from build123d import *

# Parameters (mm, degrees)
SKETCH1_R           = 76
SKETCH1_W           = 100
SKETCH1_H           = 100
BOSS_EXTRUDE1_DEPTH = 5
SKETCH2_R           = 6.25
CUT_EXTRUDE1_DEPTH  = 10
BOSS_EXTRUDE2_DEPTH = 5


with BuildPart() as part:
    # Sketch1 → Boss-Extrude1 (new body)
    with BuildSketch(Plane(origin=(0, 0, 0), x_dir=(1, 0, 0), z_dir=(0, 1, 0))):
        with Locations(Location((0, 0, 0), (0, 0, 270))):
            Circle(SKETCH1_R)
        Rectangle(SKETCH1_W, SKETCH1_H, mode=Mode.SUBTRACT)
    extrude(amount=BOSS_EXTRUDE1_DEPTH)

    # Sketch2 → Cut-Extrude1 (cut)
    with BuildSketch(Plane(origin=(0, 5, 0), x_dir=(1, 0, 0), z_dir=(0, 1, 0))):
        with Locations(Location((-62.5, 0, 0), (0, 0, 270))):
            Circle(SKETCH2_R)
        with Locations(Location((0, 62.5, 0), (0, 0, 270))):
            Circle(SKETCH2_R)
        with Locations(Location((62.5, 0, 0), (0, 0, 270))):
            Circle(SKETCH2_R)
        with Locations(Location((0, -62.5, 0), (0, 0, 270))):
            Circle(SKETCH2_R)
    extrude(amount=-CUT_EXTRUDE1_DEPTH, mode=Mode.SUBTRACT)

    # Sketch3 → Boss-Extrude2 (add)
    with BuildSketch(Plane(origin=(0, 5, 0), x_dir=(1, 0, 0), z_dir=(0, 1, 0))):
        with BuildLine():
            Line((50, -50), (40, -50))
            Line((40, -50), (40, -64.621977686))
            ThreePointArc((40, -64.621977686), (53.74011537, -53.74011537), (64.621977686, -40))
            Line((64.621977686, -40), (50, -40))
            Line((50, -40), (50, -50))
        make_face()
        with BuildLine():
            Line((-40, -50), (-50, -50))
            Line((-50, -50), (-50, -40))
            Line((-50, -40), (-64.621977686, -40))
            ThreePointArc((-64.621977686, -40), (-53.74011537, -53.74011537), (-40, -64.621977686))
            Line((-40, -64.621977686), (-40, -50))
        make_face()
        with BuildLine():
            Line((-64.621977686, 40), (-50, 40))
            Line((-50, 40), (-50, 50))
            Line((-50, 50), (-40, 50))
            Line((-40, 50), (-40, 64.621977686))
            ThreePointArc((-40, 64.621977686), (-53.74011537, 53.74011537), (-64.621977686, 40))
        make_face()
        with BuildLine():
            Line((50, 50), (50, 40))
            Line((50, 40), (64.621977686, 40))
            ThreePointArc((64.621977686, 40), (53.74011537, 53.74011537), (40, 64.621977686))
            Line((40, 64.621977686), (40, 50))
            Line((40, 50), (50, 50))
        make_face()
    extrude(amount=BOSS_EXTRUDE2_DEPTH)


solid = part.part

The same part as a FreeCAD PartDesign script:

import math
import FreeCAD as App
import Part
import Sketcher

V = App.Vector

doc = App.newDocument("Part")
body = doc.addObject("PartDesign::Body", "Body")

sketch1 = body.newObject("Sketcher::SketchObject", "Sketch")
sketch1.AttachmentSupport = (doc.getObject("XZ_Plane"), [""])
sketch1.MapMode = "FlatFace"
sketch1.addGeometry(Part.Circle(V(0, 0, 0), V(0, 0, 1), 76), False)
sketch1.addGeometry(Part.LineSegment(V(50, 50, 0), V(-50, 50, 0)), False)
sketch1.addGeometry(Part.LineSegment(V(-50, 50, 0), V(-50, -50, 0)), False)
sketch1.addGeometry(Part.LineSegment(V(-50, -50, 0), V(50, -50, 0)), False)
sketch1.addGeometry(Part.LineSegment(V(50, -50, 0), V(50, 50, 0)), False)
sketch1.addConstraint(Sketcher.Constraint("Coincident", 1, 2, 2, 1))
sketch1.addConstraint(Sketcher.Constraint("Coincident", 2, 2, 3, 1))
sketch1.addConstraint(Sketcher.Constraint("Coincident", 3, 2, 4, 1))
sketch1.addConstraint(Sketcher.Constraint("Coincident", 4, 2, 1, 1))
sketch1.addConstraint(Sketcher.Constraint("Horizontal", 1))
sketch1.addConstraint(Sketcher.Constraint("Vertical", 2))
sketch1.addConstraint(Sketcher.Constraint("Horizontal", 3))
sketch1.addConstraint(Sketcher.Constraint("Vertical", 4))
sketch1.addConstraint(Sketcher.Constraint("Coincident", 0, 3, -1, 1))
sketch1.addConstraint(Sketcher.Constraint("Symmetric", 1, 2, 3, 2, -1, 1))
sketch1.addConstraint(Sketcher.Constraint("Equal", 3, 2))
sketch1.addConstraint(Sketcher.Constraint("Diameter", 0, 152.0))
sketch1.addConstraint(Sketcher.Constraint("DistanceX", 1, 2, 1, 1, 100.0))
pad1 = body.newObject("PartDesign::Pad", "Pad")
pad1.Profile = sketch1
pad1.Length = 5
pad1.Reversed = True

sketch2 = body.newObject("Sketcher::SketchObject", "Sketch001")
sketch2.AttachmentSupport = (doc.getObject("XZ_Plane"), [""])
sketch2.MapMode = "FlatFace"
sketch2.AttachmentOffset = App.Placement(V(0, 0, -5), App.Rotation())
sketch2.addGeometry(Part.Circle(V(-62.5, 0, 0), V(0, 0, 1), 6.25), False)
sketch2.addGeometry(Part.Circle(V(0, -62.5, 0), V(0, 0, 1), 6.25), False)
sketch2.addGeometry(Part.Circle(V(62.5, 0, 0), V(0, 0, 1), 6.25), False)
sketch2.addGeometry(Part.Circle(V(0, 62.5, 0), V(0, 0, 1), 6.25), False)
sketch2.addConstraint(Sketcher.Constraint("Equal", 0, 1))
sketch2.addConstraint(Sketcher.Constraint("Equal", 1, 2))
sketch2.addConstraint(Sketcher.Constraint("Equal", 2, 3))
sketch2.addConstraint(Sketcher.Constraint("Symmetric", 0, 3, 2, 3, -1, 1))
sketch2.addConstraint(Sketcher.Constraint("Symmetric", 1, 3, 3, 3, -1, 1))
sketch2.addConstraint(Sketcher.Constraint("PointOnObject", 0, 3, -1))
sketch2.addConstraint(Sketcher.Constraint("PointOnObject", 1, 3, -2))
sketch2.addConstraint(Sketcher.Constraint("Diameter", 0, 12.5))
sketch2.addConstraint(Sketcher.Constraint("DistanceX", 0, 3, 2, 3, 125.0))
sketch2.addConstraint(Sketcher.Constraint("DistanceY", 1, 3, 3, 3, 125.0))
pocket1 = body.newObject("PartDesign::Pocket", "Pocket")
pocket1.Profile = sketch2
pocket1.Length = 10
pocket1.Reversed = True

sketch3 = body.newObject("Sketcher::SketchObject", "Sketch002")
sketch3.AttachmentSupport = (doc.getObject("XZ_Plane"), [""])
sketch3.MapMode = "FlatFace"
sketch3.AttachmentOffset = App.Placement(V(0, 0, -5), App.Rotation())
sketch3.addGeometry(Part.LineSegment(V(50, 50, 0), V(40, 50, 0)), False)
sketch3.addGeometry(Part.LineSegment(V(40, 50, 0), V(40, 64.621978, 0)), False)
sketch3.addGeometry(Part.ArcOfCircle(Part.Circle(V(0, 0, 0), V(0, 0, 1), 76), math.radians(31.756864), math.radians(58.243136)), False)
sketch3.addGeometry(Part.LineSegment(V(64.621978, 40, 0), V(50, 40, 0)), False)
sketch3.addGeometry(Part.LineSegment(V(50, 40, 0), V(50, 50, 0)), False)
sketch3.addGeometry(Part.LineSegment(V(-40, 50, 0), V(-50, 50, 0)), False)
sketch3.addGeometry(Part.LineSegment(V(-50, 50, 0), V(-50, 40, 0)), False)
sketch3.addGeometry(Part.LineSegment(V(-50, 40, 0), V(-64.621978, 40, 0)), False)
sketch3.addGeometry(Part.ArcOfCircle(Part.Circle(V(0, 0, 0), V(0, 0, 1), 76), math.radians(121.756864), math.radians(148.243136)), False)
sketch3.addGeometry(Part.LineSegment(V(-40, 64.621978, 0), V(-40, 50, 0)), False)
sketch3.addGeometry(Part.LineSegment(V(-64.621978, -40, 0), V(-50, -40, 0)), False)
sketch3.addGeometry(Part.LineSegment(V(-50, -40, 0), V(-50, -50, 0)), False)
sketch3.addGeometry(Part.LineSegment(V(-50, -50, 0), V(-40, -50, 0)), False)
sketch3.addGeometry(Part.LineSegment(V(-40, -50, 0), V(-40, -64.621978, 0)), False)
sketch3.addGeometry(Part.ArcOfCircle(Part.Circle(V(0, 0, 0), V(0, 0, 1), 76), math.radians(-148.243136), math.radians(-121.756864)), False)
sketch3.addGeometry(Part.LineSegment(V(50, -50, 0), V(50, -40, 0)), False)
sketch3.addGeometry(Part.LineSegment(V(50, -40, 0), V(64.621978, -40, 0)), False)
sketch3.addGeometry(Part.ArcOfCircle(Part.Circle(V(0, 0, 0), V(0, 0, 1), 76), math.radians(-58.243136), math.radians(-31.756864)), False)
sketch3.addGeometry(Part.LineSegment(V(40, -64.621978, 0), V(40, -50, 0)), False)
sketch3.addGeometry(Part.LineSegment(V(40, -50, 0), V(50, -50, 0)), False)
sketch3.addConstraint(Sketcher.Constraint("Coincident", 0, 2, 1, 1))
sketch3.addConstraint(Sketcher.Constraint("Coincident", 1, 2, 2, 2))
sketch3.addConstraint(Sketcher.Constraint("Coincident", 2, 1, 3, 1))
sketch3.addConstraint(Sketcher.Constraint("Coincident", 3, 2, 4, 1))
sketch3.addConstraint(Sketcher.Constraint("Coincident", 4, 2, 0, 1))
sketch3.addConstraint(Sketcher.Constraint("Coincident", 5, 2, 6, 1))
sketch3.addConstraint(Sketcher.Constraint("Coincident", 6, 2, 7, 1))
sketch3.addConstraint(Sketcher.Constraint("Coincident", 7, 2, 8, 2))
sketch3.addConstraint(Sketcher.Constraint("Coincident", 8, 1, 9, 1))
sketch3.addConstraint(Sketcher.Constraint("Coincident", 9, 2, 5, 1))
sketch3.addConstraint(Sketcher.Constraint("Coincident", 10, 2, 11, 1))
sketch3.addConstraint(Sketcher.Constraint("Coincident", 11, 2, 12, 1))
sketch3.addConstraint(Sketcher.Constraint("Coincident", 12, 2, 13, 1))
sketch3.addConstraint(Sketcher.Constraint("Coincident", 13, 2, 14, 2))
sketch3.addConstraint(Sketcher.Constraint("Coincident", 14, 1, 10, 1))
sketch3.addConstraint(Sketcher.Constraint("Coincident", 15, 2, 16, 1))
sketch3.addConstraint(Sketcher.Constraint("Coincident", 16, 2, 17, 2))
sketch3.addConstraint(Sketcher.Constraint("Coincident", 17, 1, 18, 1))
sketch3.addConstraint(Sketcher.Constraint("Coincident", 18, 2, 19, 1))
sketch3.addConstraint(Sketcher.Constraint("Coincident", 19, 2, 15, 1))
sketch3.addConstraint(Sketcher.Constraint("Horizontal", 0))
sketch3.addConstraint(Sketcher.Constraint("Vertical", 1))
sketch3.addConstraint(Sketcher.Constraint("Horizontal", 3))
sketch3.addConstraint(Sketcher.Constraint("Vertical", 4))
sketch3.addConstraint(Sketcher.Constraint("Horizontal", 5))
sketch3.addConstraint(Sketcher.Constraint("Vertical", 6))
sketch3.addConstraint(Sketcher.Constraint("Horizontal", 7))
sketch3.addConstraint(Sketcher.Constraint("Vertical", 9))
sketch3.addConstraint(Sketcher.Constraint("Horizontal", 10))
sketch3.addConstraint(Sketcher.Constraint("Vertical", 11))
sketch3.addConstraint(Sketcher.Constraint("Horizontal", 12))
sketch3.addConstraint(Sketcher.Constraint("Vertical", 13))
sketch3.addConstraint(Sketcher.Constraint("Vertical", 15))
sketch3.addConstraint(Sketcher.Constraint("Horizontal", 16))
sketch3.addConstraint(Sketcher.Constraint("Vertical", 18))
sketch3.addConstraint(Sketcher.Constraint("Horizontal", 19))
sketch3.addConstraint(Sketcher.Constraint("Coincident", 2, 3, -1, 1))
sketch3.addConstraint(Sketcher.Constraint("Coincident", 8, 3, -1, 1))
sketch3.addConstraint(Sketcher.Constraint("Coincident", 14, 3, -1, 1))
sketch3.addConstraint(Sketcher.Constraint("Coincident", 17, 3, -1, 1))
sketch3.addConstraint(Sketcher.Constraint("Equal", 2, 8))
sketch3.addConstraint(Sketcher.Constraint("Equal", 8, 14))
sketch3.addConstraint(Sketcher.Constraint("Equal", 14, 17))
sketch3.addConstraint(Sketcher.Constraint("Symmetric", 3, 2, 10, 2, -1, 1))
sketch3.addConstraint(Sketcher.Constraint("Symmetric", 0, 2, 12, 2, -1, 1))
sketch3.addConstraint(Sketcher.Constraint("Symmetric", 6, 2, 15, 2, -1, 1))
sketch3.addConstraint(Sketcher.Constraint("Symmetric", 9, 2, 18, 2, -1, 1))
sketch3.addConstraint(Sketcher.Constraint("Symmetric", 4, 2, 5, 2, -2))
sketch3.addConstraint(Sketcher.Constraint("Horizontal", 3, 2, 6, 2))
sketch3.addConstraint(Sketcher.Constraint("Horizontal", 1, 2, 8, 1))
sketch3.addConstraint(Sketcher.Constraint("Equal", 16, 1))
sketch3.addConstraint(Sketcher.Constraint("Equal", 19, 4))
sketch3.addConstraint(Sketcher.Constraint("Radius", 2, 76.0))
sketch3.addConstraint(Sketcher.Constraint("DistanceX", 0, 2, 0, 1, 10.0))
sketch3.addConstraint(Sketcher.Constraint("DistanceX", -1, 1, 0, 2, 40.0))
pad2 = body.newObject("PartDesign::Pad", "Pad001")
pad2.Profile = sketch3
pad2.Length = 5
pad2.Reversed = True

doc.recompute()
